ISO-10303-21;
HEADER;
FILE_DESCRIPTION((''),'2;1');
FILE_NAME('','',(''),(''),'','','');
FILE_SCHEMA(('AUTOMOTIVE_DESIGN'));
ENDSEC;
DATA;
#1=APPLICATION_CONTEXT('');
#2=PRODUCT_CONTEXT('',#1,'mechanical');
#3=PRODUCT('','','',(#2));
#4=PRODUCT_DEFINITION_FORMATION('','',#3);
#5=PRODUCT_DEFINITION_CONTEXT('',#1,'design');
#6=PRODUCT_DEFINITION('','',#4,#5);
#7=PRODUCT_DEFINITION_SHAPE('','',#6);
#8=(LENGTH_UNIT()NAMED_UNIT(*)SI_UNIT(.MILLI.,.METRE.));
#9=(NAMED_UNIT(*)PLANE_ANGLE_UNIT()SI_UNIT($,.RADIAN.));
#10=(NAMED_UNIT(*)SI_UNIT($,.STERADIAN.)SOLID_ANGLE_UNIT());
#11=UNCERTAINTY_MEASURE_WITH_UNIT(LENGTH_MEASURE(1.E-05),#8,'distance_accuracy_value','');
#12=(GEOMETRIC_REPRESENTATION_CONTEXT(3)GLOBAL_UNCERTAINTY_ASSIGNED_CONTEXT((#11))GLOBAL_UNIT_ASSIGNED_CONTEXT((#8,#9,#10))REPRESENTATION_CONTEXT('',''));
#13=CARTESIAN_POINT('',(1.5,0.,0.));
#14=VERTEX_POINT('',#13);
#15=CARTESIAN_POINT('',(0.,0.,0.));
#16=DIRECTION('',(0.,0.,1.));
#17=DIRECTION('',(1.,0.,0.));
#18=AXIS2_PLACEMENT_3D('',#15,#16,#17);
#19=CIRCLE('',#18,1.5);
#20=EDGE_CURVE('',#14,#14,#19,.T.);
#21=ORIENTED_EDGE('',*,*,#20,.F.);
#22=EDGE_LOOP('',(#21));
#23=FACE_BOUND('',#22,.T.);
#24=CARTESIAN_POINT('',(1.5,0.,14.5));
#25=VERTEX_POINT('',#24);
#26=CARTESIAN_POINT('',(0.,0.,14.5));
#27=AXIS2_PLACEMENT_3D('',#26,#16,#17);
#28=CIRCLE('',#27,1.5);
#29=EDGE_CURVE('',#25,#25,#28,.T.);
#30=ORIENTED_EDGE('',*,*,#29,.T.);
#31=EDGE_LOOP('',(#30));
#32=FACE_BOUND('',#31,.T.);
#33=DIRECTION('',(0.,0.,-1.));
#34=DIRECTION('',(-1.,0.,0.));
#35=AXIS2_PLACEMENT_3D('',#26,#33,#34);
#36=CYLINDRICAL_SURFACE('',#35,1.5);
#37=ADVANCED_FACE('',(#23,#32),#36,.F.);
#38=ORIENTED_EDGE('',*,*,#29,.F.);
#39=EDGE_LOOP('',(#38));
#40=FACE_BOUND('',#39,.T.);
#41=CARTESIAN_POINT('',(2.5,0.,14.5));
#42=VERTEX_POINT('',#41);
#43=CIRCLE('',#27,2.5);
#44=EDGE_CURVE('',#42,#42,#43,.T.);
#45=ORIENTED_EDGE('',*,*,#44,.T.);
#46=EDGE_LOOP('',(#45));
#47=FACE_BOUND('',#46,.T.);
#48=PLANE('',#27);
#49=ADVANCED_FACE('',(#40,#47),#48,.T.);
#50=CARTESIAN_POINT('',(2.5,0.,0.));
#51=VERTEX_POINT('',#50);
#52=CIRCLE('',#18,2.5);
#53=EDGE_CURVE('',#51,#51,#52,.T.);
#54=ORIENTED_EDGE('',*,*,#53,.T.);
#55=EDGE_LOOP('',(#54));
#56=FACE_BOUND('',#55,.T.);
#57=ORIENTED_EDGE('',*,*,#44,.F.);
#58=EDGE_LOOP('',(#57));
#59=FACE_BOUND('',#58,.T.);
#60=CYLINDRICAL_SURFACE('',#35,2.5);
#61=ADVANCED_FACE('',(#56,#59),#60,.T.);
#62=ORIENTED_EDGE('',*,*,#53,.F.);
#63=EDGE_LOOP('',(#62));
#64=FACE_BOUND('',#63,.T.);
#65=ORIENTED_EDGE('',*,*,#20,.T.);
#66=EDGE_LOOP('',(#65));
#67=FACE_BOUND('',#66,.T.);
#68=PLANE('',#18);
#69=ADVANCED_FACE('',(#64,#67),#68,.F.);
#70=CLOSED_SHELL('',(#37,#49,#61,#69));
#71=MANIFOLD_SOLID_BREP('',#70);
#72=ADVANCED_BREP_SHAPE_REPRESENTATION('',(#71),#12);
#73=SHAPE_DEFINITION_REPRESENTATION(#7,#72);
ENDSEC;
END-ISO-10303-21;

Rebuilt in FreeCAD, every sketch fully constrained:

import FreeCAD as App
import Part
import Sketcher
from FreeCAD import Vector

doc = App.newDocument("Part")
body = doc.addObject("PartDesign::Body", "Body")

# Sketch on XY plane
sketch1 = body.newObject("Sketcher::SketchObject", "Sketch")
sketch1.AttachmentSupport = (doc.getObject("XY_Plane"), [""])
sketch1.MapMode = "FlatFace"
sketch1.addGeometry([
    Part.Circle(Vector(0, 0, 0), Vector(0, 0, 1), 2.5),
    Part.Circle(Vector(0, 0, 0), Vector(0, 0, 1), 1.5),
], False)
sketch1.addConstraint([
    Sketcher.Constraint("Coincident", 0, 3, -1, 1),
    Sketcher.Constraint("Coincident", 1, 3, -1, 1),
    Sketcher.Constraint("Diameter", 0, 5.0),
    Sketcher.Constraint("Diameter", 1, 3.0),
])
pad1 = body.newObject("PartDesign::Pad", "Pad")
pad1.Profile = sketch1
pad1.Length = 14.5

doc.recompute()
